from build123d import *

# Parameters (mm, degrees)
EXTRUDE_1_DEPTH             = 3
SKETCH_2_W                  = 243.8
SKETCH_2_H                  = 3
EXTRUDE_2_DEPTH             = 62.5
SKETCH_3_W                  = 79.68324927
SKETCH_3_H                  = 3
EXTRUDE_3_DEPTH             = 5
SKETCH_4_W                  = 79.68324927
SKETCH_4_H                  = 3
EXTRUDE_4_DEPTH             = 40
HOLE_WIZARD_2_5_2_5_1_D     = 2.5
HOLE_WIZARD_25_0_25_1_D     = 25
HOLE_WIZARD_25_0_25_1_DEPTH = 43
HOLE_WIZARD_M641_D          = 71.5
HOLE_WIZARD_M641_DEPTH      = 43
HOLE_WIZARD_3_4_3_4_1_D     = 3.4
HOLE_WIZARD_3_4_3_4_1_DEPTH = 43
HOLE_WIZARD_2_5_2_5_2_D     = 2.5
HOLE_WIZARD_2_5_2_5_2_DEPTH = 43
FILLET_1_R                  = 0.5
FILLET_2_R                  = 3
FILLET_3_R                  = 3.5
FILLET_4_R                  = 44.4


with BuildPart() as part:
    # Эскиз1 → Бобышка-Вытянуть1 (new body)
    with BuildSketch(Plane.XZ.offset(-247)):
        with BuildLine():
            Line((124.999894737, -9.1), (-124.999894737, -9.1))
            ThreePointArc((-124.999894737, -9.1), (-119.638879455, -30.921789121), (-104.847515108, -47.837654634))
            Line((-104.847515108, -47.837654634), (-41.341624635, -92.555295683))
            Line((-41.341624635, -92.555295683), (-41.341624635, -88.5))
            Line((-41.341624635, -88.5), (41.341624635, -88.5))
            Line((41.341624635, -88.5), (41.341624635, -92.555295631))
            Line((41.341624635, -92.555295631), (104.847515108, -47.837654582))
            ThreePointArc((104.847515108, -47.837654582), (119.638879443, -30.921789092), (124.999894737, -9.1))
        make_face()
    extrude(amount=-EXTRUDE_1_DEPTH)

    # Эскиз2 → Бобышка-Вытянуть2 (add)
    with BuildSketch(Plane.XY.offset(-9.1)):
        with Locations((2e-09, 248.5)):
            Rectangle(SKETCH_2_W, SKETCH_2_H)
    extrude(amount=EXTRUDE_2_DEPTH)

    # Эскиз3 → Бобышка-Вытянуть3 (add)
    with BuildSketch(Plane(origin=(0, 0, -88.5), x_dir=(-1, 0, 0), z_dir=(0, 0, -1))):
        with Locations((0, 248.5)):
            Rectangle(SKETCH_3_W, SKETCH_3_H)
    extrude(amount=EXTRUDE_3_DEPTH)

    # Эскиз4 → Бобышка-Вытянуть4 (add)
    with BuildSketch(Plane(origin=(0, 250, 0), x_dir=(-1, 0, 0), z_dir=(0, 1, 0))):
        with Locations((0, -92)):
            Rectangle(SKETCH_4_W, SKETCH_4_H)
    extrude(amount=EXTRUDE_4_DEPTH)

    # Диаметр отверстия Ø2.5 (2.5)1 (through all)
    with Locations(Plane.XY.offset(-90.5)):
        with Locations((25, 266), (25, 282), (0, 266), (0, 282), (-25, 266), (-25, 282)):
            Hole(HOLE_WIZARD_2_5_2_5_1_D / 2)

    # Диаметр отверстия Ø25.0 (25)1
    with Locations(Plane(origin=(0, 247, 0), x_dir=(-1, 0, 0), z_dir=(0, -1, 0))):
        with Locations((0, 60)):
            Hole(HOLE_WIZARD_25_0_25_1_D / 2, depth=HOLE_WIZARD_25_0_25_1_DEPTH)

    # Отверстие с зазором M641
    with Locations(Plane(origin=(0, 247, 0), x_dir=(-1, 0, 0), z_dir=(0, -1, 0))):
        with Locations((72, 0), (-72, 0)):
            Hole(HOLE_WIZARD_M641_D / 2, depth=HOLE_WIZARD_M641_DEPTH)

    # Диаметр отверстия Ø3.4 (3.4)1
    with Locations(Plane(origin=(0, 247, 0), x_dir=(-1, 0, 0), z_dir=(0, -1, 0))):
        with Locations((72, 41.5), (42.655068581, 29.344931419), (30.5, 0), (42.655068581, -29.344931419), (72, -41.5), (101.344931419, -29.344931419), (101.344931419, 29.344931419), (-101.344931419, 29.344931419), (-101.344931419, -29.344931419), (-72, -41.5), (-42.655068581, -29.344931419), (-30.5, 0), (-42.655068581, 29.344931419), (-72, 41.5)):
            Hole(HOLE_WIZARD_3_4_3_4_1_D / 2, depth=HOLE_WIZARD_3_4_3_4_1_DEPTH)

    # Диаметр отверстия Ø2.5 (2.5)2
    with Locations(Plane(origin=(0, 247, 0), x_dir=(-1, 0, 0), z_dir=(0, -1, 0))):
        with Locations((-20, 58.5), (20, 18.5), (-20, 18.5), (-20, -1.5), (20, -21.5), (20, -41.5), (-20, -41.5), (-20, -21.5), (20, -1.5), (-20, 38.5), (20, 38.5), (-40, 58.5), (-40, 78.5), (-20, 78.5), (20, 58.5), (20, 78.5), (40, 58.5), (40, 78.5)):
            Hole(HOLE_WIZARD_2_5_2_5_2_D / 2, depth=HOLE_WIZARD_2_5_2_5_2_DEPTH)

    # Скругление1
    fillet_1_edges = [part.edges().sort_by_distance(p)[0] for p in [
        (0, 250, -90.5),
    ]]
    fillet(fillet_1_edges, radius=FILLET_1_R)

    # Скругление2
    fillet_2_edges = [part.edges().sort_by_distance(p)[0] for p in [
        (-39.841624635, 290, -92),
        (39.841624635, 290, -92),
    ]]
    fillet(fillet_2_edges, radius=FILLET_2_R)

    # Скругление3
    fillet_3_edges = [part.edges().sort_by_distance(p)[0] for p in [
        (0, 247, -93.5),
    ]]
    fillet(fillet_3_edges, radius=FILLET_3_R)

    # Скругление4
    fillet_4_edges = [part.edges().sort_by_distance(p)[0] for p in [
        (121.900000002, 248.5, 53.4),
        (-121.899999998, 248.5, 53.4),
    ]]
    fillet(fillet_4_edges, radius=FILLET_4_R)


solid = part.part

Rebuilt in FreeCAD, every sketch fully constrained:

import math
import FreeCAD as App
import Part
import Sketcher


def edges_at(feature, points):
    """Names of the edges that pass closest to the given points."""
    edges = feature.Shape.Edges
    near = lambda p: min(range(len(edges)), key=lambda i: edges[i].distToShape(Part.Vertex(*p))[0])
    return sorted({f"Edge{near(p) + 1}" for p in points})

doc = App.newDocument("Part")
params = doc.addObject("Spreadsheet::Sheet", "Params")
for row, (alias, value) in enumerate([
    ("sketch1_radius", "47.5 mm"),
    ("pad1_length", "3 mm"),
    ("sketch2_height", "3 mm"),
    ("sketch2_width", "243.8 mm"),
    ("pad2_length", "62.5 mm"),
    ("sketch3_height", "3 mm"),
    ("pad3_length", "5 mm"),
    ("sketch4_height", "3 mm"),
    ("pad4_length", "40 mm"),
    ("sketch5_diameter", "2.5 mm"),
    ("hole_diameter", "2.5 mm"),
    ("sketch6_diameter", "25 mm"),
    ("hole2_diameter", "25 mm"),
    ("hole2_depth", "43 mm"),
    ("sketch7_diameter", "71.5 mm"),
    ("hole3_diameter", "71.5 mm"),
    ("hole3_depth", "43 mm"),
    ("sketch8_diameter", "3.4 mm"),
    ("hole4_diameter", "3.4 mm"),
    ("hole4_depth", "43 mm"),
    ("sketch9_diameter", "2.5 mm"),
    ("hole5_diameter", "2.5 mm"),
    ("hole5_depth", "43 mm"),
    ("fillet_radius", "0.5 mm"),
    ("fillet2_radius", "3 mm"),
    ("fillet3_radius", "3.5 mm"),
    ("fillet4_radius", "44.4 mm"),
], start=1):
    params.set(f"A{row}", alias)
    params.set(f"B{row}", "=" + value)
    params.setAlias(f"B{row}", alias)

body = doc.addObject("PartDesign::Body", "Body")

sketch1 = doc.addObject("Sketcher::SketchObject", "Sketch")
body.addObject(sketch1)
sketch1.AttachmentSupport = (doc.XZ_Plane, [""])
sketch1.MapMode = "FlatFace"
sketch1.AttachmentOffset = App.Placement(App.Vector(0, 0, -247), App.Rotation())
sketch1.addGeometry([
    Part.LineSegment(App.Vector(124.999895, -9.1, 0), App.Vector(-124.999895, -9.1, 0)),
    Part.ArcOfCircle(Part.Circle(App.Vector(-77.5, -9, 0), App.Vector(0, 0, 1), 47.5), math.radians(-179.879377), math.radians(-125.151272)),
    Part.LineSegment(App.Vector(-104.847515, -47.837655, 0), App.Vector(-41.341625, -92.555296, 0)),
    Part.LineSegment(App.Vector(-41.341625, -92.555296, 0), App.Vector(-41.341625, -88.5, 0)),
    Part.LineSegment(App.Vector(-41.341625, -88.5, 0), App.Vector(41.341625, -88.5, 0)),
    Part.LineSegment(App.Vector(41.341625, -88.5, 0), App.Vector(41.341625, -92.555296, 0)),
    Part.LineSegment(App.Vector(41.341625, -92.555296, 0), App.Vector(104.847515, -47.837655, 0)),
    Part.ArcOfCircle(Part.Circle(App.Vector(77.5, -9, 0), App.Vector(0, 0, 1), 47.5), math.radians(-54.848728), math.radians(-0.120623)),
], False)
sketch1.addConstraint([
    Sketcher.Constraint("Coincident", 0, 2, 1, 1),
    Sketcher.Constraint("Tangent", 1, 2, 2, 1),
    Sketcher.Constraint("Coincident", 2, 2, 3, 1),
    Sketcher.Constraint("Coincident", 3, 2, 4, 1),
    Sketcher.Constraint("Coincident", 4, 2, 5, 1),
    Sketcher.Constraint("Coincident", 5, 2, 6, 1),
    Sketcher.Constraint("Tangent", 6, 2, 7, 1),
    Sketcher.Constraint("Coincident", 7, 2, 0, 1),
    Sketcher.Constraint("Horizontal", 0),
    Sketcher.Constraint("Vertical", 3),
    Sketcher.Constraint("Horizontal", 4),
    Sketcher.Constraint("Vertical", 5),
    Sketcher.Constraint("Equal", 1, 7),
    Sketcher.Constraint("Symmetric", 1, 3, 7, 3, -2),
    Sketcher.Constraint("Symmetric", 2, 2, 5, 2, -2),
    Sketcher.Constraint("Radius", 1, 47.5),
    Sketcher.Constraint("DistanceY", 1, 3, -1, 1, 9.0),
    Sketcher.Constraint("DistanceX", 1, 3, 7, 3, 155.0),
    Sketcher.Constraint("DistanceY", 0, 2, -1, 1, 9.1),
    Sketcher.Constraint("DistanceY", 3, 2, -1, 1, 88.5),
    Sketcher.Constraint("DistanceX", 4, 1, 4, 2, 82.683249),
    Sketcher.Constraint("DistanceY", 3, 1, 3, 2, 4.055296),
])
sketch1.setExpression("Constraints[15]", "Params.sketch1_radius")
pad1 = doc.addObject("PartDesign::Pad", "Pad")
body.addObject(pad1)
pad1.Profile = sketch1
pad1.setExpression("Length", "Params.pad1_length")
pad1.Reversed = True

sketch2 = doc.addObject("Sketcher::SketchObject", "Sketch001")
body.addObject(sketch2)
sketch2.AttachmentSupport = (doc.XY_Plane, [""])
sketch2.MapMode = "FlatFace"
sketch2.AttachmentOffset = App.Placement(App.Vector(0, 0, -9.1), App.Rotation())
sketch2.addGeometry([
    Part.LineSegment(App.Vector(-121.9, 250, 0), App.Vector(-121.9, 247, 0)),
    Part.LineSegment(App.Vector(-121.9, 247, 0), App.Vector(121.9, 247, 0)),
    Part.LineSegment(App.Vector(121.9, 247, 0), App.Vector(121.9, 250, 0)),
    Part.LineSegment(App.Vector(121.9, 250, 0), App.Vector(-121.9, 250, 0)),
], False)
sketch2.addConstraint([
    Sketcher.Constraint("Coincident", 0, 2, 1, 1),
    Sketcher.Constraint("Coincident", 1, 2, 2, 1),
    Sketcher.Constraint("Coincident", 2, 2, 3, 1),
    Sketcher.Constraint("Coincident", 3, 2, 0, 1),
    Sketcher.Constraint("Vertical", 0),
    Sketcher.Constraint("Horizontal", 1),
    Sketcher.Constraint("Vertical", 2),
    Sketcher.Constraint("Horizontal", 3),
    Sketcher.Constraint("DistanceY", 0, 2, 0, 1, 3.0),
    Sketcher.Constraint("DistanceX", 1, 1, 1, 2, 243.8),
    Sketcher.Constraint("DistanceY", -1, 1, 0, 2, 247.0),
    Sketcher.Constraint("DistanceX", 0, 2, -1, 1, 121.9),
])
sketch2.setExpression("Constraints[8]", "Params.sketch2_height")
sketch2.setExpression("Constraints[9]", "Params.sketch2_width")
pad2 = doc.addObject("PartDesign::Pad", "Pad001")
body.addObject(pad2)
pad2.Profile = sketch2
pad2.setExpression("Length", "Params.pad2_length")

sketch3 = doc.addObject("Sketcher::SketchObject", "Sketch002")
body.addObject(sketch3)
sketch3.AttachmentSupport = (doc.XY_Plane, [""])
sketch3.MapMode = "FlatFace"
sketch3.AttachmentOffset = App.Placement(App.Vector(0, 0, -88.5), App.Rotation())
sketch3.addGeometry([
    Part.LineSegment(App.Vector(39.841625, 250, 0), App.Vector(39.841625, 247, 0)),
    Part.LineSegment(App.Vector(39.841625, 247, 0), App.Vector(-39.841625, 247, 0)),
    Part.LineSegment(App.Vector(-39.841625, 247, 0), App.Vector(-39.841625, 250, 0)),
    Part.LineSegment(App.Vector(-39.841625, 250, 0), App.Vector(39.841625, 250, 0)),
], False)
sketch3.addConstraint([
    Sketcher.Constraint("Coincident", 0, 2, 1, 1),
    Sketcher.Constraint("Coincident", 1, 2, 2, 1),
    Sketcher.Constraint("Coincident", 2, 2, 3, 1),
    Sketcher.Constraint("Coincident", 3, 2, 0, 1),
    Sketcher.Constraint("Vertical", 0),
    Sketcher.Constraint("Horizontal", 1),
    Sketcher.Constraint("Vertical", 2),
    Sketcher.Constraint("Horizontal", 3),
    Sketcher.Constraint("DistanceY", 0, 2, 0, 1, 3.0),
    Sketcher.Constraint("DistanceY", -1, 1, 0, 2, 247.0),
    Sketcher.Constraint("DistanceX", 1, 2, 1, 1, 79.683249),
    Sketcher.Constraint("DistanceX", -1, 1, 0, 2, 39.841625),
])
sketch3.setExpression("Constraints[8]", "Params.sketch3_height")
pad3 = doc.addObject("PartDesign::Pad", "Pad002")
body.addObject(pad3)
pad3.Profile = sketch3
pad3.setExpression("Length", "Params.pad3_length")
pad3.Reversed = True

sketch4 = doc.addObject("Sketcher::SketchObject", "Sketch003")
body.addObject(sketch4)
sketch4.AttachmentSupport = (doc.XZ_Plane, [""])
sketch4.MapMode = "FlatFace"
sketch4.AttachmentOffset = App.Placement(App.Vector(0, 0, -250), App.Rotation())
sketch4.addGeometry([
    Part.LineSegment(App.Vector(39.841625, -90.5, 0), App.Vector(39.841625, -93.5, 0)),
    Part.LineSegment(App.Vector(39.841625, -93.5, 0), App.Vector(-39.841625, -93.5, 0)),
    Part.LineSegment(App.Vector(-39.841625, -93.5, 0), App.Vector(-39.841625, -90.5, 0)),
    Part.LineSegment(App.Vector(-39.841625, -90.5, 0), App.Vector(39.841625, -90.5, 0)),
], False)
sketch4.addConstraint([
    Sketcher.Constraint("Coincident", 0, 2, 1, 1),
    Sketcher.Constraint("Coincident", 1, 2, 2, 1),
    Sketcher.Constraint("Coincident", 2, 2, 3, 1),
    Sketcher.Constraint("Coincident", 3, 2, 0, 1),
    Sketcher.Constraint("Vertical", 0),
    Sketcher.Constraint("Horizontal", 1),
    Sketcher.Constraint("Vertical", 2),
    Sketcher.Constraint("Horizontal", 3),
    Sketcher.Constraint("DistanceY", 0, 2, 0, 1, 3.0),
    Sketcher.Constraint("DistanceY", 0, 2, -1, 1, 93.5),
    Sketcher.Constraint("DistanceX", 1, 2, 1, 1, 79.683249),
    Sketcher.Constraint("DistanceX", -1, 1, 0, 2, 39.841625),
])
sketch4.setExpression("Constraints[8]", "Params.sketch4_height")
pad4 = doc.addObject("PartDesign::Pad", "Pad003")
body.addObject(pad4)
pad4.Profile = sketch4
pad4.setExpression("Length", "Params.pad4_length")
pad4.Reversed = True

sketch5 = doc.addObject("Sketcher::SketchObject", "Sketch004")
body.addObject(sketch5)
sketch5.AttachmentSupport = (doc.XY_Plane, [""])
sketch5.MapMode = "FlatFace"
sketch5.AttachmentOffset = App.Placement(App.Vector(0, 0, -90.5), App.Rotation())
sketch5.addGeometry([
    Part.Circle(App.Vector(25, 266, 0), App.Vector(0, 0, 1), 1.25),
    Part.Circle(App.Vector(25, 282, 0), App.Vector(0, 0, 1), 1.25),
    Part.Circle(App.Vector(0, 266, 0), App.Vector(0, 0, 1), 1.25),
    Part.Circle(App.Vector(0, 282, 0), App.Vector(0, 0, 1), 1.25),
    Part.Circle(App.Vector(-25, 266, 0), App.Vector(0, 0, 1), 1.25),
    Part.Circle(App.Vector(-25, 282, 0), App.Vector(0, 0, 1), 1.25),
], False)
sketch5.addConstraint([
    Sketcher.Constraint("Equal", 0, 1),
    Sketcher.Constraint("Equal", 1, 2),
    Sketcher.Constraint("Equal", 2, 3),
    Sketcher.Constraint("Equal", 3, 4),
    Sketcher.Constraint("Equal", 4, 5),
    Sketcher.Constraint("Symmetric", 0, 3, 4, 3, -2),
    Sketcher.Constraint("Symmetric", 1, 3, 5, 3, -2),
    Sketcher.Constraint("PointOnObject", 2, 3, -2),
    Sketcher.Constraint("PointOnObject", 3, 3, -2),
    Sketcher.Constraint("Horizontal", 0, 3, 2, 3),
    Sketcher.Constraint("Horizontal", 1, 3, 3, 3),
    Sketcher.Constraint("Vertical", 0, 3, 1, 3),
    Sketcher.Constraint("Diameter", 0, 2.5),
    Sketcher.Constraint("DistanceX", -1, 1, 0, 3, 25.0),
    Sketcher.Constraint("DistanceY", -1, 1, 0, 3, 266.0),
    Sketcher.Constraint("DistanceY", -1, 1, 1, 3, 282.0),
])
sketch5.setExpression("Constraints[12]", "Params.sketch5_diameter")
doc.recompute()
hole = doc.addObject("PartDesign::Hole", "Hole")
body.addObject(hole)
hole.Profile = sketch5
hole.ThreadType = "None"
hole.setExpression("Diameter", "Params.hole_diameter")
hole.DepthType = "ThroughAll"

sketch6 = doc.addObject("Sketcher::SketchObject", "Sketch005")
body.addObject(sketch6)
sketch6.AttachmentSupport = (doc.XZ_Plane, [""])
sketch6.MapMode = "FlatFace"
sketch6.AttachmentOffset = App.Placement(App.Vector(0, 0, -247), App.Rotation())
sketch6.addGeometry(Part.Circle(App.Vector(0, -60, 0), App.Vector(0, 0, 1), 12.5), False)
sketch6.addConstraint([
    Sketcher.Constraint("PointOnObject", 0, 3, -2),
    Sketcher.Constraint("Diameter", 0, 25.0),
    Sketcher.Constraint("DistanceY", 0, 3, -1, 1, 60.0),
])
sketch6.setExpression("Constraints[1]", "Params.sketch6_diameter")
doc.recompute()
hole2 = doc.addObject("PartDesign::Hole", "Hole001")
body.addObject(hole2)
hole2.Profile = sketch6
hole2.ThreadType = "None"
hole2.setExpression("Diameter", "Params.hole2_diameter")
hole2.DepthType = "Dimension"
hole2.setExpression("Depth", "Params.hole2_depth")
hole2.DrillPoint = "Flat"

sketch7 = doc.addObject("Sketcher::SketchObject", "Sketch006")
body.addObject(sketch7)
sketch7.AttachmentSupport = (doc.XZ_Plane, [""])
sketch7.MapMode = "FlatFace"
sketch7.AttachmentOffset = App.Placement(App.Vector(0, 0, -247), App.Rotation())
sketch7.addGeometry([
    Part.Circle(App.Vector(-72, 0, 0), App.Vector(0, 0, 1), 35.75),
    Part.Circle(App.Vector(72, 0, 0), App.Vector(0, 0, 1), 35.75),
], False)
sketch7.addConstraint([
    Sketcher.Constraint("Equal", 0, 1),
    Sketcher.Constraint("Symmetric", 0, 3, 1, 3, -1, 1),
    Sketcher.Constraint("PointOnObject", 0, 3, -1),
    Sketcher.Constraint("Diameter", 0, 71.5),
    Sketcher.Constraint("DistanceX", 0, 3, -1, 1, 72.0),
])
sketch7.setExpression("Constraints[3]", "Params.sketch7_diameter")
doc.recompute()
hole3 = doc.addObject("PartDesign::Hole", "Hole002")
body.addObject(hole3)
hole3.Profile = sketch7
hole3.ThreadType = "None"
hole3.setExpression("Diameter", "Params.hole3_diameter")
hole3.DepthType = "Dimension"
hole3.setExpression("Depth", "Params.hole3_depth")
hole3.DrillPoint = "Flat"

sketch8 = doc.addObject("Sketcher::SketchObject", "Sketch007")
body.addObject(sketch8)
sketch8.AttachmentSupport = (doc.XZ_Plane, [""])
sketch8.MapMode = "FlatFace"
sketch8.AttachmentOffset = App.Placement(App.Vector(0, 0, -247), App.Rotation())
sketch8.addGeometry([
    Part.Circle(App.Vector(-72, -41.5, 0), App.Vector(0, 0, 1), 1.7),
    Part.Circle(App.Vector(-42.655069, -29.344931, 0), App.Vector(0, 0, 1), 1.7),
    Part.Circle(App.Vector(-30.5, 0, 0), App.Vector(0, 0, 1), 1.7),
    Part.Circle(App.Vector(-42.655069, 29.344931, 0), App.Vector(0, 0, 1), 1.7),
    Part.Circle(App.Vector(-72, 41.5, 0), App.Vector(0, 0, 1), 1.7),
    Part.Circle(App.Vector(-101.344931, 29.344931, 0), App.Vector(0, 0, 1), 1.7),
    Part.Circle(App.Vector(-101.344931, -29.344931, 0), App.Vector(0, 0, 1), 1.7),
    Part.Circle(App.Vector(101.344931, -29.344931, 0), App.Vector(0, 0, 1), 1.7),
    Part.Circle(App.Vector(101.344931, 29.344931, 0), App.Vector(0, 0, 1), 1.7),
    Part.Circle(App.Vector(72, 41.5, 0), App.Vector(0, 0, 1), 1.7),
    Part.Circle(App.Vector(42.655069, 29.344931, 0), App.Vector(0, 0, 1), 1.7),
    Part.Circle(App.Vector(30.5, 0, 0), App.Vector(0, 0, 1), 1.7),
    Part.Circle(App.Vector(42.655069, -29.344931, 0), App.Vector(0, 0, 1), 1.7),
    Part.Circle(App.Vector(72, -41.5, 0), App.Vector(0, 0, 1), 1.7),
], False)
sketch8.addConstraint([
    Sketcher.Constraint("Equal", 0, 1),
    Sketcher.Constraint("Equal", 1, 2),
    Sketcher.Constraint("Equal", 2, 3),
    Sketcher.Constraint("Equal", 3, 4),
    Sketcher.Constraint("Equal", 4, 5),
    Sketcher.Constraint("Equal", 5, 6),
    Sketcher.Constraint("Equal", 6, 7),
    Sketcher.Constraint("Equal", 7, 8),
    Sketcher.Constraint("Equal", 8, 9),
    Sketcher.Constraint("Equal", 9, 10),
    Sketcher.Constraint("Equal", 10, 11),
    Sketcher.Constraint("Equal", 11, 12),
    Sketcher.Constraint("Equal", 12, 13),
    Sketcher.Constraint("Symmetric", 5, 3, 7, 3, -1, 1),
    Sketcher.Constraint("Symmetric", 6, 3, 8, 3, -1, 1),
    Sketcher.Constraint("Symmetric", 0, 3, 9, 3, -1, 1),
    Sketcher.Constraint("Symmetric", 1, 3, 10, 3, -1, 1),
    Sketcher.Constraint("Symmetric", 2, 3, 11, 3, -1, 1),
    Sketcher.Constraint("Symmetric", 3, 3, 12, 3, -1, 1),
    Sketcher.Constraint("Symmetric", 4, 3, 13, 3, -1, 1),
    Sketcher.Constraint("Symmetric", 6, 3, 7, 3, -2),
    Sketcher.Constraint("Symmetric", 4, 3, 9, 3, -2),
    Sketcher.Constraint("Symmetric", 3, 3, 10, 3, -2),
    Sketcher.Constraint("PointOnObject", 2, 3, -1),
    Sketcher.Constraint("Horizontal", 3, 3, 5, 3),
    Sketcher.Constraint("Diameter", 0, 3.4),
    Sketcher.Constraint("DistanceX", 0, 3, -1, 1, 72.0),
    Sketcher.Constraint("DistanceY", 0, 3, 4, 3, 83.0),
    Sketcher.Constraint("DistanceX", 1, 3, 7, 3, 144.0),
    Sketcher.Constraint("DistanceX", 2, 3, 11, 3, 61.0),
    Sketcher.Constraint("DistanceX", 1, 3, -1, 1, 42.655069),
    Sketcher.Constraint("DistanceY", 1, 3, -1, 1, 29.344931),
])
sketch8.setExpression("Constraints[25]", "Params.sketch8_diameter")
doc.recompute()
hole4 = doc.addObject("PartDesign::Hole", "Hole003")
body.addObject(hole4)
hole4.Profile = sketch8
hole4.ThreadType = "None"
hole4.setExpression("Diameter", "Params.hole4_diameter")
hole4.DepthType = "Dimension"
hole4.setExpression("Depth", "Params.hole4_depth")
hole4.DrillPoint = "Flat"

sketch9 = doc.addObject("Sketcher::SketchObject", "Sketch008")
body.addObject(sketch9)
sketch9.AttachmentSupport = (doc.XZ_Plane, [""])
sketch9.MapMode = "FlatFace"
sketch9.AttachmentOffset = App.Placement(App.Vector(0, 0, -247), App.Rotation())
sketch9.addGeometry([
    Part.Circle(App.Vector(20, -58.5, 0), App.Vector(0, 0, 1), 1.25),
    Part.Circle(App.Vector(-20, -18.5, 0), App.Vector(0, 0, 1), 1.25),
    Part.Circle(App.Vector(20, -18.5, 0), App.Vector(0, 0, 1), 1.25),
    Part.Circle(App.Vector(20, 1.5, 0), App.Vector(0, 0, 1), 1.25),
    Part.Circle(App.Vector(-20, 21.5, 0), App.Vector(0, 0, 1), 1.25),
    Part.Circle(App.Vector(-20, 41.5, 0), App.Vector(0, 0, 1), 1.25),
    Part.Circle(App.Vector(20, 41.5, 0), App.Vector(0, 0, 1), 1.25),
    Part.Circle(App.Vector(20, 21.5, 0), App.Vector(0, 0, 1), 1.25),
    Part.Circle(App.Vector(-20, 1.5, 0), App.Vector(0, 0, 1), 1.25),
    Part.Circle(App.Vector(20, -38.5, 0), App.Vector(0, 0, 1), 1.25),
    Part.Circle(App.Vector(-20, -38.5, 0), App.Vector(0, 0, 1), 1.25),
    Part.Circle(App.Vector(40, -58.5, 0), App.Vector(0, 0, 1), 1.25),
    Part.Circle(App.Vector(40, -78.5, 0), App.Vector(0, 0, 1), 1.25),
    Part.Circle(App.Vector(20, -78.5, 0), App.Vector(0, 0, 1), 1.25),
    Part.Circle(App.Vector(-20, -58.5, 0), App.Vector(0, 0, 1), 1.25),
    Part.Circle(App.Vector(-20, -78.5, 0), App.Vector(0, 0, 1), 1.25),
    Part.Circle(App.Vector(-40, -58.5, 0), App.Vector(0, 0, 1), 1.25),
    Part.Circle(App.Vector(-40, -78.5, 0), App.Vector(0, 0, 1), 1.25),
], False)
sketch9.addConstraint([
    Sketcher.Constraint("Equal", 0, 1),
    Sketcher.Constraint("Equal", 1, 2),
    Sketcher.Constraint("Equal", 2, 3),
    Sketcher.Constraint("Equal", 3, 4),
    Sketcher.Constraint("Equal", 4, 5),
    Sketcher.Constraint("Equal", 5, 6),
    Sketcher.Constraint("Equal", 6, 7),
    Sketcher.Constraint("Equal", 7, 8),
    Sketcher.Constraint("Equal", 8, 9),
    Sketcher.Constraint("Equal", 9, 10),
    Sketcher.Constraint("Equal", 10, 11),
    Sketcher.Constraint("Equal", 11, 12),
    Sketcher.Constraint("Equal", 12, 13),
    Sketcher.Constraint("Equal", 13, 14),
    Sketcher.Constraint("Equal", 14, 15),
    Sketcher.Constraint("Equal", 15, 16),
    Sketcher.Constraint("Equal", 16, 17),
    Sketcher.Constraint("Symmetric", 1, 3, 2, 3, -2),
    Sketcher.Constraint("Symmetric", 5, 3, 6, 3, -2),
    Sketcher.Constraint("Symmetric", 4, 3, 7, 3, -2),
    Sketcher.Constraint("Symmetric", 3, 3, 8, 3, -2),
    Sketcher.Constraint("Symmetric", 9, 3, 10, 3, -2),
    Sketcher.Constraint("Symmetric", 0, 3, 14, 3, -2),
    Sketcher.Constraint("Symmetric", 13, 3, 15, 3, -2),
    Sketcher.Constraint("Symmetric", 11, 3, 16, 3, -2),
    Sketcher.Constraint("Symmetric", 12, 3, 17, 3, -2),
    Sketcher.Constraint("Horizontal", 0, 3, 11, 3),
    Sketcher.Constraint("Horizontal", 12, 3, 13, 3),
    Sketcher.Constraint("Vertical", 0, 3, 2, 3),
    Sketcher.Constraint("Vertical", 2, 3, 3, 3),
    Sketcher.Constraint("Vertical", 1, 3, 4, 3),
    Sketcher.Constraint("Vertical", 4, 3, 5, 3),
    Sketcher.Constraint("Vertical", 7, 3, 9, 3),
    Sketcher.Constraint("Vertical", 11, 3, 12, 3),
    Sketcher.Constraint("Vertical", 9, 3, 13, 3),
    Sketcher.Constraint("Diameter", 0, 2.5),
    Sketcher.Constraint("DistanceX", -1, 1, 0, 3, 20.0),
    Sketcher.Constraint("DistanceX", -1, 1, 11, 3, 40.0),
    Sketcher.Constraint("DistanceY", 0, 3, 1, 3, 40.0),
    Sketcher.Constraint("DistanceY", 2, 3, 3, 3, 20.0),
    Sketcher.Constraint("DistanceY", 1, 3, 4, 3, 40.0),
    Sketcher.Constraint("DistanceY", 4, 3, 5, 3, 20.0),
    Sketcher.Constraint("DistanceY", 0, 3, 9, 3, 20.0),
    Sketcher.Constraint("DistanceY", 12, 3, 11, 3, 20.0),
    Sketcher.Constraint("DistanceY", 0, 3, -1, 1, 58.5),
])
sketch9.setExpression("Constraints[35]", "Params.sketch9_diameter")
doc.recompute()
hole5 = doc.addObject("PartDesign::Hole", "Hole004")
body.addObject(hole5)
hole5.Profile = sketch9
hole5.ThreadType = "None"
hole5.setExpression("Diameter", "Params.hole5_diameter")
hole5.DepthType = "Dimension"
hole5.setExpression("Depth", "Params.hole5_depth")
hole5.DrillPoint = "Flat"
doc.recompute()

fillet = doc.addObject("PartDesign::Fillet", "Fillet")
body.addObject(fillet)
fillet.Base = (hole5, edges_at(hole5, [(0, 250, -90.5)]))
fillet.setExpression("Radius", "Params.fillet_radius")
doc.recompute()

fillet2 = doc.addObject("PartDesign::Fillet", "Fillet001")
body.addObject(fillet2)
fillet2.Base = (fillet, edges_at(fillet, [(-39.842, 290, -92), (39.842, 290, -92)]))
fillet2.setExpression("Radius", "Params.fillet2_radius")
doc.recompute()

fillet3 = doc.addObject("PartDesign::Fillet", "Fillet002")
body.addObject(fillet3)
fillet3.Base = (fillet2, edges_at(fillet2, [(0, 247, -93.5)]))
fillet3.setExpression("Radius", "Params.fillet3_radius")
doc.recompute()

fillet4 = doc.addObject("PartDesign::Fillet", "Fillet003")
body.addObject(fillet4)
fillet4.Base = (fillet3, edges_at(fillet3, [(121.9, 248.5, 53.4), (-121.9, 248.5, 53.4)]))
fillet4.setExpression("Radius", "Params.fillet4_radius")

doc.recompute()
